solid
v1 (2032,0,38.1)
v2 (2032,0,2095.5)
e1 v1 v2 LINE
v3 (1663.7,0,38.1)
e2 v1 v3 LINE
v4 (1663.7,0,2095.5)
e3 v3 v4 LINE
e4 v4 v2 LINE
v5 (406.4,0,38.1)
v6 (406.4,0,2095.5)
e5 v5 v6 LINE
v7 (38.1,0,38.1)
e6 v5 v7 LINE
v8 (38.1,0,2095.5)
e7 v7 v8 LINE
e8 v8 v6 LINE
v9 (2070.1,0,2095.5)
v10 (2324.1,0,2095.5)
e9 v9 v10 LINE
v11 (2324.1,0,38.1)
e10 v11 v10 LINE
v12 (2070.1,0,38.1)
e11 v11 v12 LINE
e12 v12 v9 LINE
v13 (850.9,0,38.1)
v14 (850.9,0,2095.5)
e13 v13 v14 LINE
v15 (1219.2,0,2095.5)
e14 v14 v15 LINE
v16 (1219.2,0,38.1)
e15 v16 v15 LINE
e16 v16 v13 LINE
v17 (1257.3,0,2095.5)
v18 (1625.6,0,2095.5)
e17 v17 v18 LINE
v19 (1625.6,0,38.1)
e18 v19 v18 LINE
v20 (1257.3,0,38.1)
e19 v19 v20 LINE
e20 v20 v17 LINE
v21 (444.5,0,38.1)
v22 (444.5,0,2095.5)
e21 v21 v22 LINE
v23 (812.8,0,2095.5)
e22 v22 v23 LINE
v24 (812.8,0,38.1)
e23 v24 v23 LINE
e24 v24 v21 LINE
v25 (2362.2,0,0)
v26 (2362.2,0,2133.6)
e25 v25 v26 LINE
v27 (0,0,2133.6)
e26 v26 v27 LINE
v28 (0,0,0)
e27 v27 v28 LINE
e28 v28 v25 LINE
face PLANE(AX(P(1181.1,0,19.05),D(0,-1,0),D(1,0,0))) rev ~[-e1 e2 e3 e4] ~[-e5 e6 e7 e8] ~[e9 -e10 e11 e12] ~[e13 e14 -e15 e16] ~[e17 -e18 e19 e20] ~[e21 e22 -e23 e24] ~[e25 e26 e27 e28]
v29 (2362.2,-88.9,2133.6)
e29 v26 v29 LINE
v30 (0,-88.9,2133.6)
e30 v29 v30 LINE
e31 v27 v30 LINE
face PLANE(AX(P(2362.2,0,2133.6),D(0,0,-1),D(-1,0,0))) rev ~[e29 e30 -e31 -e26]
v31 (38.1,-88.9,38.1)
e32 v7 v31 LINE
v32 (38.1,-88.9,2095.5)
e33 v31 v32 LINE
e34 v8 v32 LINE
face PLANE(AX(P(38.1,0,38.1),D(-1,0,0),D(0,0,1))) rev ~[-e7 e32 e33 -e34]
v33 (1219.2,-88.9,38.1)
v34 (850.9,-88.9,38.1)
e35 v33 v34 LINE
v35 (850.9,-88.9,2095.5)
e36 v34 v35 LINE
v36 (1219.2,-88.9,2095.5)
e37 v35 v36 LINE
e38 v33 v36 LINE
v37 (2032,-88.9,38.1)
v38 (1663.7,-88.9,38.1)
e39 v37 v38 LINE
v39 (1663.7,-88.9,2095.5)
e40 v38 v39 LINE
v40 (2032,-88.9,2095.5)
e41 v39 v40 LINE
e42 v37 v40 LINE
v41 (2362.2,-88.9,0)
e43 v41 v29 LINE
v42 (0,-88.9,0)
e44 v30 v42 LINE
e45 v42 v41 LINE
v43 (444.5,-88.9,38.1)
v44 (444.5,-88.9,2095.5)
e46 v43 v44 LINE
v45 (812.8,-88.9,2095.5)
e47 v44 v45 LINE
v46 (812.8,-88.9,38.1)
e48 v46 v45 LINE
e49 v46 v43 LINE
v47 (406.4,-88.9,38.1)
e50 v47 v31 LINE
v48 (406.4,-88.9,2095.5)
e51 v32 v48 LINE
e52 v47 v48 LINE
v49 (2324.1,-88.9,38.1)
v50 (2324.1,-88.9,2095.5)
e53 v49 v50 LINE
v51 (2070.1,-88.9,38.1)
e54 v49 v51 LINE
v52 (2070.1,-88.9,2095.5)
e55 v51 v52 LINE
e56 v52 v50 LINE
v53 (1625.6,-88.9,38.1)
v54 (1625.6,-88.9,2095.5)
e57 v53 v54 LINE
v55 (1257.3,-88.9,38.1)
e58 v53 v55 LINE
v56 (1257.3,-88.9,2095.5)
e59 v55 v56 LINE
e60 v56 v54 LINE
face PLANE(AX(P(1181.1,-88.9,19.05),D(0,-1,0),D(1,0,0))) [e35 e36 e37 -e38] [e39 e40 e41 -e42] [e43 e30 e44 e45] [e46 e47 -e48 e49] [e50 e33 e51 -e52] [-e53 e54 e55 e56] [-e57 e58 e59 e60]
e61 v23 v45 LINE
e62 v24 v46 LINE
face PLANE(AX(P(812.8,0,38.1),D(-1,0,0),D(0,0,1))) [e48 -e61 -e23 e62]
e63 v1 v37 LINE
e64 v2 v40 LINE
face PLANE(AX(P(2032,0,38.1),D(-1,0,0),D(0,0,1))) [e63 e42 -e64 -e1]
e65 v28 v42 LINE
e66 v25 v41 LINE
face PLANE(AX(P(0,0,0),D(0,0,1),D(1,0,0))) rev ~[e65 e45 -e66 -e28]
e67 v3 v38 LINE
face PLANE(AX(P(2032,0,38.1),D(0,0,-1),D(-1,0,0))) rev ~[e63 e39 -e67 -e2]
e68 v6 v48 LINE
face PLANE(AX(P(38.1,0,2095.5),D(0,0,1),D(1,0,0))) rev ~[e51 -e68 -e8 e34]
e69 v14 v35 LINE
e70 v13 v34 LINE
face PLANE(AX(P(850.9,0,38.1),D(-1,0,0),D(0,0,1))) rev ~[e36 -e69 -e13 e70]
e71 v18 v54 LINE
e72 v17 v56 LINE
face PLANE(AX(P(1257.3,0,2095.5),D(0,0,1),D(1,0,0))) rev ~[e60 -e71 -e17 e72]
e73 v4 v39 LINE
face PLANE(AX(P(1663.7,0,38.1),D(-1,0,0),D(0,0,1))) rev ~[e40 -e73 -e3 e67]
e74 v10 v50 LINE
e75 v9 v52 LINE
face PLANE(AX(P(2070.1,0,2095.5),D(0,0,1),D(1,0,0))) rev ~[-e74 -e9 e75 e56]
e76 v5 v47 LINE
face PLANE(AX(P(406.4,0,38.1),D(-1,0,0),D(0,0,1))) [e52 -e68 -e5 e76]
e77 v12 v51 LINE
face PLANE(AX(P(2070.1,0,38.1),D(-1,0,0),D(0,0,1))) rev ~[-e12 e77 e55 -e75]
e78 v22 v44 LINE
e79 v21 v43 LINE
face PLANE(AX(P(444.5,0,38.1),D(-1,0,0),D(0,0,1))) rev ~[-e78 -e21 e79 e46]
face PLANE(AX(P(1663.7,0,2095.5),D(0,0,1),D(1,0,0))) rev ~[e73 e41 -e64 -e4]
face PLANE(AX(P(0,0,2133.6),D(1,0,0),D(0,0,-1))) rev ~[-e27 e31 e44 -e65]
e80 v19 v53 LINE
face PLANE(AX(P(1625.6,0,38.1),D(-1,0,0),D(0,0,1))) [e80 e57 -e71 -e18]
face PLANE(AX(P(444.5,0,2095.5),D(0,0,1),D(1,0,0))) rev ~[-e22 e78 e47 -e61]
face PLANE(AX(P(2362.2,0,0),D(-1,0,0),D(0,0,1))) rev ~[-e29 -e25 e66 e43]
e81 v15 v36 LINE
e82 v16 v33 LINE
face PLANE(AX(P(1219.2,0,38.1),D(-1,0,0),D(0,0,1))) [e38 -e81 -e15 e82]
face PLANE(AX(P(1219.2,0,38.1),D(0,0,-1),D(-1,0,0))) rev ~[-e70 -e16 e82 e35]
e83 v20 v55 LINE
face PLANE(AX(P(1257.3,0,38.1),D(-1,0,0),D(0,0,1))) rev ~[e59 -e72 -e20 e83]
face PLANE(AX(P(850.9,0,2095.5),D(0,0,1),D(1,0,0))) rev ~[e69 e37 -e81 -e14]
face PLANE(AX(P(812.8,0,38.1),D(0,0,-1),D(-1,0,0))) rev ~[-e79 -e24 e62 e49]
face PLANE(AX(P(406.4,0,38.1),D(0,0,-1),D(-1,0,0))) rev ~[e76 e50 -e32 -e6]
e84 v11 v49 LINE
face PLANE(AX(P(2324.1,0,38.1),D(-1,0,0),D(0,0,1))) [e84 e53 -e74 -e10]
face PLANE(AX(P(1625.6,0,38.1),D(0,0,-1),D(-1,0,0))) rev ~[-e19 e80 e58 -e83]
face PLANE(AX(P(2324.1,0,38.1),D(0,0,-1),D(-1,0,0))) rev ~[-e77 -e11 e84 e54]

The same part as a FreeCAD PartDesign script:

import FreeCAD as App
import Part
import Sketcher
Q = App.Units.Quantity

doc = App.newDocument("Part")
params = doc.addObject("Spreadsheet::Sheet", "Params")
for row, (alias, value) in enumerate([
    ("sketch1_width", "93 in"),
    ("sketch1_width2", "10 in"),
    ("sketch1_height", "84 in"),
    ("sketch1_height2", "81 in"),
    ("sketch1_width3", "14.5 in"),
    ("pad1_length", "3.5 in"),
], start=1):
    params.set(f"A{row}", alias)
    params.set(f"B{row}", "=" + value)
    params.setAlias(f"B{row}", alias)

body = doc.addObject("PartDesign::Body", "Body")

# Sketch on XZ plane
sketch1 = body.newObject("Sketcher::SketchObject", "Sketch")
sketch1.AttachmentSupport = (doc.getObject("XZ_Plane"), [""])
sketch1.MapMode = "FlatFace"
sketch1.addGeometry(Part.LineSegment(App.Vector(0, 0, 0), App.Vector(2362, 0, 0)), False)
sketch1.addGeometry(Part.LineSegment(App.Vector(2362, 0, 0), App.Vector(2362, 2134, 0)), False)
sketch1.addGeometry(Part.LineSegment(App.Vector(2362, 2134, 0), App.Vector(0, 2134, 0)), False)
sketch1.addGeometry(Part.LineSegment(App.Vector(0, 2134, 0), App.Vector(0, 0, 0)), False)
sketch1.addGeometry(Part.LineSegment(App.Vector(2324, 2096, 0), App.Vector(2324, 38, 0)), False)
sketch1.addGeometry(Part.LineSegment(App.Vector(2324, 38, 0), App.Vector(2070, 38, 0)), False)
sketch1.addGeometry(Part.LineSegment(App.Vector(2070, 38, 0), App.Vector(2070, 2096, 0)), False)
sketch1.addGeometry(Part.LineSegment(App.Vector(2070, 2096, 0), App.Vector(2324, 2096, 0)), False)
sketch1.addGeometry(Part.LineSegment(App.Vector(2032, 38, 0), App.Vector(1664, 38, 0)), False)
sketch1.addGeometry(Part.LineSegment(App.Vector(1664, 38, 0), App.Vector(1664, 2096, 0)), False)
sketch1.addGeometry(Part.LineSegment(App.Vector(1664, 2096, 0), App.Vector(2032, 2096, 0)), False)
sketch1.addGeometry(Part.LineSegment(App.Vector(2032, 2096, 0), App.Vector(2032, 38, 0)), False)
sketch1.addGeometry(Part.LineSegment(App.Vector(1626, 38, 0), App.Vector(1257, 38, 0)), False)
sketch1.addGeometry(Part.LineSegment(App.Vector(1257, 38, 0), App.Vector(1257, 2096, 0)), False)
sketch1.addGeometry(Part.LineSegment(App.Vector(1257, 2096, 0), App.Vector(1626, 2096, 0)), False)
sketch1.addGeometry(Part.LineSegment(App.Vector(1626, 2096, 0), App.Vector(1626, 38, 0)), False)
sketch1.addGeometry(Part.LineSegment(App.Vector(1219, 38, 0), App.Vector(851, 38, 0)), False)
sketch1.addGeometry(Part.LineSegment(App.Vector(851, 38, 0), App.Vector(851, 2096, 0)), False)
sketch1.addGeometry(Part.LineSegment(App.Vector(851, 2096, 0), App.Vector(1219, 2096, 0)), False)
sketch1.addGeometry(Part.LineSegment(App.Vector(1219, 2096, 0), App.Vector(1219, 38, 0)), False)
sketch1.addGeometry(Part.LineSegment(App.Vector(813, 38, 0), App.Vector(444, 38, 0)), False)
sketch1.addGeometry(Part.LineSegment(App.Vector(444, 38, 0), App.Vector(444, 2096, 0)), False)
sketch1.addGeometry(Part.LineSegment(App.Vector(444, 2096, 0), App.Vector(813, 2096, 0)), False)
sketch1.addGeometry(Part.LineSegment(App.Vector(813, 2096, 0), App.Vector(813, 38, 0)), False)
sketch1.addGeometry(Part.LineSegment(App.Vector(406, 38, 0), App.Vector(38, 38, 0)), False)
sketch1.addGeometry(Part.LineSegment(App.Vector(38, 38, 0), App.Vector(38, 2096, 0)), False)
sketch1.addGeometry(Part.LineSegment(App.Vector(38, 2096, 0), App.Vector(406, 2096, 0)), False)
sketch1.addGeometry(Part.LineSegment(App.Vector(406, 2096, 0), App.Vector(406, 38, 0)), False)
sketch1.addConstraint(Sketcher.Constraint("Coincident", 0, 2, 1, 1))
sketch1.addConstraint(Sketcher.Constraint("Coincident", 1, 2, 2, 1))
sketch1.addConstraint(Sketcher.Constraint("Coincident", 2, 2, 3, 1))
sketch1.addConstraint(Sketcher.Constraint("Coincident", 3, 2, 0, 1))
sketch1.addConstraint(Sketcher.Constraint("Coincident", 4, 2, 5, 1))
sketch1.addConstraint(Sketcher.Constraint("Coincident", 5, 2, 6, 1))
sketch1.addConstraint(Sketcher.Constraint("Coincident", 6, 2, 7, 1))
sketch1.addConstraint(Sketcher.Constraint("Coincident", 7, 2, 4, 1))
sketch1.addConstraint(Sketcher.Constraint("Coincident", 8, 2, 9, 1))
sketch1.addConstraint(Sketcher.Constraint("Coincident", 9, 2, 10, 1))
sketch1.addConstraint(Sketcher.Constraint("Coincident", 10, 2, 11, 1))
sketch1.addConstraint(Sketcher.Constraint("Coincident", 11, 2, 8, 1))
sketch1.addConstraint(Sketcher.Constraint("Coincident", 12, 2, 13, 1))
sketch1.addConstraint(Sketcher.Constraint("Coincident", 13, 2, 14, 1))
sketch1.addConstraint(Sketcher.Constraint("Coincident", 14, 2, 15, 1))
sketch1.addConstraint(Sketcher.Constraint("Coincident", 15, 2, 12, 1))
sketch1.addConstraint(Sketcher.Constraint("Coincident", 16, 2, 17, 1))
sketch1.addConstraint(Sketcher.Constraint("Coincident", 17, 2, 18, 1))
sketch1.addConstraint(Sketcher.Constraint("Coincident", 18, 2, 19, 1))
sketch1.addConstraint(Sketcher.Constraint("Coincident", 19, 2, 16, 1))
sketch1.addConstraint(Sketcher.Constraint("Coincident", 20, 2, 21, 1))
sketch1.addConstraint(Sketcher.Constraint("Coincident", 21, 2, 22, 1))
sketch1.addConstraint(Sketcher.Constraint("Coincident", 22, 2, 23, 1))
sketch1.addConstraint(Sketcher.Constraint("Coincident", 23, 2, 20, 1))
sketch1.addConstraint(Sketcher.Constraint("Coincident", 24, 2, 25, 1))
sketch1.addConstraint(Sketcher.Constraint("Coincident", 25, 2, 26, 1))
sketch1.addConstraint(Sketcher.Constraint("Coincident", 26, 2, 27, 1))
sketch1.addConstraint(Sketcher.Constraint("Coincident", 27, 2, 24, 1))
sketch1.addConstraint(Sketcher.Constraint("Horizontal", 0))
sketch1.addConstraint(Sketcher.Constraint("Vertical", 1))
sketch1.addConstraint(Sketcher.Constraint("Horizontal", 2))
sketch1.addConstraint(Sketcher.Constraint("Vertical", 3))
sketch1.addConstraint(Sketcher.Constraint("Vertical", 4))
sketch1.addConstraint(Sketcher.Constraint("Horizontal", 5))
sketch1.addConstraint(Sketcher.Constraint("Vertical", 6))
sketch1.addConstraint(Sketcher.Constraint("Horizontal", 7))
sketch1.addConstraint(Sketcher.Constraint("Horizontal", 8))
sketch1.addConstraint(Sketcher.Constraint("Vertical", 9))
sketch1.addConstraint(Sketcher.Constraint("Horizontal", 10))
sketch1.addConstraint(Sketcher.Constraint("Vertical", 11))
sketch1.addConstraint(Sketcher.Constraint("Horizontal", 12))
sketch1.addConstraint(Sketcher.Constraint("Vertical", 13))
sketch1.addConstraint(Sketcher.Constraint("Horizontal", 14))
sketch1.addConstraint(Sketcher.Constraint("Vertical", 15))
sketch1.addConstraint(Sketcher.Constraint("Horizontal", 16))
sketch1.addConstraint(Sketcher.Constraint("Vertical", 17))
sketch1.addConstraint(Sketcher.Constraint("Horizontal", 18))
sketch1.addConstraint(Sketcher.Constraint("Vertical", 19))
sketch1.addConstraint(Sketcher.Constraint("Horizontal", 20))
sketch1.addConstraint(Sketcher.Constraint("Vertical", 21))
sketch1.addConstraint(Sketcher.Constraint("Horizontal", 22))
sketch1.addConstraint(Sketcher.Constraint("Vertical", 23))
sketch1.addConstraint(Sketcher.Constraint("Horizontal", 24))
sketch1.addConstraint(Sketcher.Constraint("Vertical", 25))
sketch1.addConstraint(Sketcher.Constraint("Horizontal", 26))
sketch1.addConstraint(Sketcher.Constraint("Vertical", 27))
sketch1.addConstraint(Sketcher.Constraint("Coincident", 3, 2, -1, 1))
sketch1.addConstraint(Sketcher.Constraint("Horizontal", 5, 2, 8, 2))
sketch1.addConstraint(Sketcher.Constraint("Horizontal", 7, 2, 9, 2))
sketch1.addConstraint(Sketcher.Constraint("Horizontal", 11, 2, 12, 2))
sketch1.addConstraint(Sketcher.Constraint("Horizontal", 10, 2, 13, 2))
sketch1.addConstraint(Sketcher.Constraint("Horizontal", 15, 2, 16, 2))
sketch1.addConstraint(Sketcher.Constraint("Horizontal", 14, 2, 17, 2))
sketch1.addConstraint(Sketcher.Constraint("Horizontal", 19, 2, 20, 2))
sketch1.addConstraint(Sketcher.Constraint("Horizontal", 18, 2, 21, 2))
sketch1.addConstraint(Sketcher.Constraint("Horizontal", 23, 2, 24, 2))
sketch1.addConstraint(Sketcher.Constraint("Horizontal", 22, 2, 25, 2))
sketch1.addConstraint(Sketcher.Constraint("Equal", 10, 12))
sketch1.addConstraint(Sketcher.Constraint("Equal", 14, 16))
sketch1.addConstraint(Sketcher.Constraint("Equal", 18, 20))
sketch1.addConstraint(Sketcher.Constraint("Equal", 22, 24))
sketch1.addConstraint(Sketcher.Constraint("DistanceX", 0, 1, 0, 2, Q("93 in")))
sketch1.addConstraint(Sketcher.Constraint("DistanceX", 5, 2, 5, 1, Q("10 in")))
sketch1.addConstraint(Sketcher.Constraint("DistanceY", 1, 1, 1, 2, Q("84 in")))
sketch1.addConstraint(Sketcher.Constraint("DistanceY", 4, 2, 4, 1, Q("81 in")))
sketch1.addConstraint(Sketcher.Constraint("DistanceX", 8, 2, 8, 1, Q("14.5 in")))
sketch1.addConstraint(Sketcher.Constraint("DistanceX", -1, 1, 10, 2, Q("80 in")))
sketch1.addConstraint(Sketcher.Constraint("DistanceX", -1, 1, 14, 2, Q("64 in")))
sketch1.addConstraint(Sketcher.Constraint("DistanceX", -1, 1, 18, 2, Q("48 in")))
sketch1.addConstraint(Sketcher.Constraint("DistanceX", -1, 1, 22, 2, Q("32 in")))
sketch1.addConstraint(Sketcher.Constraint("DistanceX", -1, 1, 26, 2, Q("16 in")))
sketch1.addConstraint(Sketcher.Constraint("DistanceX", 8, 2, 5, 2, Q("16 in")))
sketch1.addConstraint(Sketcher.Constraint("DistanceY", -1, 1, 4, 2, Q("1.5 in")))
sketch1.setExpression("Constraints[71]", "Params.sketch1_width")
sketch1.setExpression("Constraints[72]", "Params.sketch1_width2")
sketch1.setExpression("Constraints[73]", "Params.sketch1_height")
sketch1.setExpression("Constraints[74]", "Params.sketch1_height2")
sketch1.setExpression("Constraints[75]", "Params.sketch1_width3")
pad1 = body.newObject("PartDesign::Pad", "Pad")
pad1.Profile = sketch1
pad1.setExpression("Length", "Params.pad1_length")

doc.recompute()
